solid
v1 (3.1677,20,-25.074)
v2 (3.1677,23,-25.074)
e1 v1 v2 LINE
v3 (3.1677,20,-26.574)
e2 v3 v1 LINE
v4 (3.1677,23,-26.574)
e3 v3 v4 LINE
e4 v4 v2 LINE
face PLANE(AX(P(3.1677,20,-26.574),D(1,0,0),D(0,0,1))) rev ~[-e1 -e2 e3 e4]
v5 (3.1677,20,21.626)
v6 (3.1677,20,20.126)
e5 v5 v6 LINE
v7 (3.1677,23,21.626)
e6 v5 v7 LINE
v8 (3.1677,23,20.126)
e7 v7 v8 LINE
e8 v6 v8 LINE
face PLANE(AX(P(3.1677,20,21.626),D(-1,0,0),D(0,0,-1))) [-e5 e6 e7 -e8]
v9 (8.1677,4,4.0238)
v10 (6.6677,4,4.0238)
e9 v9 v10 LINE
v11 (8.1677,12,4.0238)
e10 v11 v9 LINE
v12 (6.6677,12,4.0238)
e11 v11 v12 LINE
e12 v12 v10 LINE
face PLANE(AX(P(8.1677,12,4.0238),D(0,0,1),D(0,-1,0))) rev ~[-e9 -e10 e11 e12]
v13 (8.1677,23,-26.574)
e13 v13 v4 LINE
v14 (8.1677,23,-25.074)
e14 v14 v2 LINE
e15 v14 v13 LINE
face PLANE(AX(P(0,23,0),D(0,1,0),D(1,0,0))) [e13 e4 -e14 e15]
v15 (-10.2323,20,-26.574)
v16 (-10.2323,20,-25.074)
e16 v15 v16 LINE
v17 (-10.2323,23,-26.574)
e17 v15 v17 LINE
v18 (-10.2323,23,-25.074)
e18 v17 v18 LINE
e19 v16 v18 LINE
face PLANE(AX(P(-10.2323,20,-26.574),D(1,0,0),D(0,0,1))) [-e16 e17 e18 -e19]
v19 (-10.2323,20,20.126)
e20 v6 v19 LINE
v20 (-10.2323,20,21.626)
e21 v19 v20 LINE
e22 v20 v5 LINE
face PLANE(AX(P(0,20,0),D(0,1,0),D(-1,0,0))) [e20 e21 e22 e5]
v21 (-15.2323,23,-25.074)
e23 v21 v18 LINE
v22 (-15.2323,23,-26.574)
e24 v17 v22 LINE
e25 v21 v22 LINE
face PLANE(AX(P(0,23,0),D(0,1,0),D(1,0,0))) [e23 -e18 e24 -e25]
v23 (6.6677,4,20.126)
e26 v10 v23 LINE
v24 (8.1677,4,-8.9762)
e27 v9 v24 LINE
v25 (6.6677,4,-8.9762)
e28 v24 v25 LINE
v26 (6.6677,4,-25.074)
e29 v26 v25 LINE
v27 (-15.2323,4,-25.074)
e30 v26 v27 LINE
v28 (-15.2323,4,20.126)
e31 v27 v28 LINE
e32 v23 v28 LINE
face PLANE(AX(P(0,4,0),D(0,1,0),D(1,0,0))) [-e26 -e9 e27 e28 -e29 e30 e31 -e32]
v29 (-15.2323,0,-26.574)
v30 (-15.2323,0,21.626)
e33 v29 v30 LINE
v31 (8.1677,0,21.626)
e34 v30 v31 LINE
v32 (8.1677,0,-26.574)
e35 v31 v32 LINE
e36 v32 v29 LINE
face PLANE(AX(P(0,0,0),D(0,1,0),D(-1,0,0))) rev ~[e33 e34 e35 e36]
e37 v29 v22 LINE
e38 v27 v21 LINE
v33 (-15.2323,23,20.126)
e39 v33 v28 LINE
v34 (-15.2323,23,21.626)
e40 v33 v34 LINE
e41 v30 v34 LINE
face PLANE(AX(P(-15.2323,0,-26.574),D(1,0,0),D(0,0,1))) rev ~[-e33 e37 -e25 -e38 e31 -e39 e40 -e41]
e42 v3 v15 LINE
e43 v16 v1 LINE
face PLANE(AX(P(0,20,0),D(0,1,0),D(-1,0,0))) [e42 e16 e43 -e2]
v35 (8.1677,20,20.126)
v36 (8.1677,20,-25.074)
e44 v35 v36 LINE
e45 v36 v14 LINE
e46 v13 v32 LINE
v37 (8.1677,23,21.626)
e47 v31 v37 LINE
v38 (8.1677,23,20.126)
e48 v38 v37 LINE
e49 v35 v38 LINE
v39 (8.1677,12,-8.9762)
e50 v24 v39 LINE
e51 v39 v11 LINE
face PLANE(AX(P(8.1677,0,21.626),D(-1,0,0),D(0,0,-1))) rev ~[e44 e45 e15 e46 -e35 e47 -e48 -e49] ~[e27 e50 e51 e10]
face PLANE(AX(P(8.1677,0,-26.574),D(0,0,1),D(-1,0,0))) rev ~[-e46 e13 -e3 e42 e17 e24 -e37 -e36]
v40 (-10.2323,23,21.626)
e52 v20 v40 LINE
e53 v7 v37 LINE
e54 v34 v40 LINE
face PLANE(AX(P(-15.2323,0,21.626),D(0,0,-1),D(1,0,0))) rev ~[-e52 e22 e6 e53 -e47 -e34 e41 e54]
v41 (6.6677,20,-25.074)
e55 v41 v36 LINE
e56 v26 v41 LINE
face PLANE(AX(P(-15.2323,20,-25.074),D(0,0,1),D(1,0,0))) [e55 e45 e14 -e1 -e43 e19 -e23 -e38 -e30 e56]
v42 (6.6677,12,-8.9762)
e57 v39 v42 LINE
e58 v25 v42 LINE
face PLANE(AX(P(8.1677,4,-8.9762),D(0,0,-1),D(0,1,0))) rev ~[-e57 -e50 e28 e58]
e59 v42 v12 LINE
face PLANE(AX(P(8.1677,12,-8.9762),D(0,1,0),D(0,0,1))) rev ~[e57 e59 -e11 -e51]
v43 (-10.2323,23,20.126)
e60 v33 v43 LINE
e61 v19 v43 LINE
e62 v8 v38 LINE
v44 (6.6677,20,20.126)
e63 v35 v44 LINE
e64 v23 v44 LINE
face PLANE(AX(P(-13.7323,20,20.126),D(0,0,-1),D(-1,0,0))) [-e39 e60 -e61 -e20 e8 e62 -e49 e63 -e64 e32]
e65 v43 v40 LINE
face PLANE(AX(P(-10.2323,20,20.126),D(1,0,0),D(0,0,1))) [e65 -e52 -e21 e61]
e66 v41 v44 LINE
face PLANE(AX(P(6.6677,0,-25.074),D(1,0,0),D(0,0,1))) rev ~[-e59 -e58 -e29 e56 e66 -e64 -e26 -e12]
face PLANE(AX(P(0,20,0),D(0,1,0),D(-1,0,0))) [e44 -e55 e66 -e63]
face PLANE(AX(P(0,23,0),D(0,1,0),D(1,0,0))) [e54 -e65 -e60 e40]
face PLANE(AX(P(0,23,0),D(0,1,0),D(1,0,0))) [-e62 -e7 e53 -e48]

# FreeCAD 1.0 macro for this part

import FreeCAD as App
import Part
import Sketcher

V = App.Vector


def add_polygon(sketch, points):
    """Adds a closed chain of lines whose ends are joined by coincident constraints."""
    first, n = sketch.GeometryCount, len(points)
    for a, b in zip(points, points[1:] + points[:1]):
        sketch.addGeometry(Part.LineSegment(App.Vector(*a, 0), App.Vector(*b, 0)), False)
    for i in range(n):
        sketch.addConstraint(Sketcher.Constraint("Coincident", first + i, 2, first + (i + 1) % n, 1))

doc = App.newDocument("Part")
body = doc.addObject("PartDesign::Body", "Body")

sketch1 = body.newObject("Sketcher::SketchObject", "Sketch")
sketch1.AttachmentSupport = (doc.getObject("XZ_Plane"), [""])
sketch1.MapMode = "FlatFace"
add_polygon(sketch1, [(8, -27), (-15, -27), (-15, 22), (8, 22)])
add_polygon(sketch1, [(7, -25), (7, 20), (-14, 20), (-14, -25)])
sketch1.addConstraint([
    Sketcher.Constraint("Horizontal", 0),
    Sketcher.Constraint("Vertical", 1),
    Sketcher.Constraint("Horizontal", 2),
    Sketcher.Constraint("Vertical", 3),
    Sketcher.Constraint("Vertical", 4),
    Sketcher.Constraint("Horizontal", 5),
    Sketcher.Constraint("Vertical", 6),
    Sketcher.Constraint("Horizontal", 7),
    Sketcher.Constraint("DistanceX", 5, 2, 5, 1, 20.4),
    Sketcher.Constraint("DistanceY", 4, 1, 4, 2, 45.2),
    Sketcher.Constraint("DistanceX", 4, 2, 2, 2, 1.5),
    Sketcher.Constraint("DistanceY", 4, 2, 2, 2, 1.5),
    Sketcher.Constraint("DistanceX", 1, 2, 5, 2, 1.5),
    Sketcher.Constraint("DistanceY", 0, 2, 6, 2, 1.5),
    Sketcher.Constraint("DistanceY", 0, 2, -1, 1, 26.574),
    Sketcher.Constraint("DistanceX", 0, 2, -1, 1, 15.2323),
])
pad1 = body.newObject("PartDesign::Pad", "Pad")
pad1.Profile = sketch1
pad1.Length = 20
pad1.Reversed = True

sketch2 = body.newObject("Sketcher::SketchObject", "Sketch001")
sketch2.AttachmentSupport = (doc.getObject("YZ_Plane"), [""])
sketch2.MapMode = "FlatFace"
sketch2.AttachmentOffset = App.Placement(V(0, 0, 8.1677), App.Rotation())
add_polygon(sketch2, [(4, -9), (12, -9), (12, 4), (4, 4)])
sketch2.addConstraint([
    Sketcher.Constraint("Horizontal", 0),
    Sketcher.Constraint("Vertical", 1),
    Sketcher.Constraint("Horizontal", 2),
    Sketcher.Constraint("Vertical", 3),
    Sketcher.Constraint("DistanceX", 0, 1, 0, 2, 8.0),
    Sketcher.Constraint("DistanceY", 1, 1, 1, 2, 13.0),
    Sketcher.Constraint("DistanceX", -1, 1, 0, 2, 12.0),
    Sketcher.Constraint("DistanceY", 0, 2, -1, 1, 8.9762),
])
pocket1 = body.newObject("PartDesign::Pocket", "Pocket")
pocket1.Profile = sketch2
pocket1.Length = 6

sketch3 = body.newObject("Sketcher::SketchObject", "Sketch002")
sketch3.AttachmentSupport = (doc.getObject("XZ_Plane"), [""])
sketch3.MapMode = "FlatFace"
add_polygon(sketch3, [(-14, 20), (7, 20), (7, -25), (-14, -25)])
sketch3.addConstraint([
    Sketcher.Constraint("Horizontal", 0),
    Sketcher.Constraint("Vertical", 1),
    Sketcher.Constraint("Horizontal", 2),
    Sketcher.Constraint("Vertical", 3),
    Sketcher.Constraint("DistanceX", 0, 1, 0, 2, 20.4),
    Sketcher.Constraint("DistanceY", 1, 2, 1, 1, 45.2),
    Sketcher.Constraint("DistanceY", -1, 1, 0, 2, 20.126),
    Sketcher.Constraint("DistanceX", -1, 1, 0, 2, 6.6677),
])
pad2 = body.newObject("PartDesign::Pad", "Pad001")
pad2.Profile = sketch3
pad2.Length = 4
pad2.Reversed = True

sketch4 = body.newObject("Sketcher::SketchObject", "Sketch003")
sketch4.AttachmentSupport = (doc.getObject("XZ_Plane"), [""])
sketch4.MapMode = "FlatFace"
sketch4.AttachmentOffset = App.Placement(V(0, 0, -20), App.Rotation())
add_polygon(sketch4, [(-15.2, 20.1), (-13.7, 20.1), (-13.7, -25.1), (-15.2, -25.1)])
sketch4.addConstraint([
    Sketcher.Constraint("Horizontal", 0),
    Sketcher.Constraint("Vertical", 1),
    Sketcher.Constraint("Horizontal", 2),
    Sketcher.Constraint("Vertical", 3),
    Sketcher.Constraint("DistanceX", 0, 1, 0, 2, 1.5),
    Sketcher.Constraint("DistanceY", 1, 2, 1, 1, 45.2),
    Sketcher.Constraint("DistanceY", -1, 1, 0, 2, 20.126),
    Sketcher.Constraint("DistanceX", 0, 2, -1, 1, 13.7323),
])
pocket2 = body.newObject("PartDesign::Pocket", "Pocket001")
pocket2.Profile = sketch4
pocket2.Length = 16
pocket2.Reversed = True

sketch5 = body.newObject("Sketcher::SketchObject", "Sketch004")
sketch5.AttachmentSupport = (doc.getObject("XZ_Plane"), [""])
sketch5.MapMode = "FlatFace"
sketch5.AttachmentOffset = App.Placement(V(0, 0, -20), App.Rotation())
add_polygon(sketch5, [(-10.2, 20.1), (-15.2, 20.1), (-15.2, 21.6), (-10.2, 21.6)])
add_polygon(sketch5, [(3.2, -25.1), (8.2, -25.1), (8.2, -26.6), (3.2, -26.6)])
add_polygon(sketch5, [(8.2, 20.1), (3.2, 20.1), (3.2, 21.6), (8.2, 21.6)])
add_polygon(sketch5, [(-10.2, -25.1), (-10.2, -26.6), (-15.2, -26.6), (-15.2, -25.1)])
sketch5.addConstraint([
    Sketcher.Constraint("Horizontal", 0),
    Sketcher.Constraint("Vertical", 1),
    Sketcher.Constraint("Horizontal", 2),
    Sketcher.Constraint("Vertical", 3),
    Sketcher.Constraint("Horizontal", 4),
    Sketcher.Constraint("Vertical", 5),
    Sketcher.Constraint("Horizontal", 6),
    Sketcher.Constraint("Vertical", 7),
    Sketcher.Constraint("Horizontal", 8),
    Sketcher.Constraint("Vertical", 9),
    Sketcher.Constraint("Horizontal", 10),
    Sketcher.Constraint("Vertical", 11),
    Sketcher.Constraint("Vertical", 12),
    Sketcher.Constraint("Horizontal", 13),
    Sketcher.Constraint("Vertical", 14),
    Sketcher.Constraint("Horizontal", 15),
    Sketcher.Constraint("Horizontal", 3, 2, 8, 2),
    Sketcher.Constraint("Horizontal", 2, 2, 9, 2),
    Sketcher.Constraint("Horizontal", 6, 2, 12, 2),
    Sketcher.Constraint("Horizontal", 7, 2, 14, 2),
    Sketcher.Constraint("Vertical", 7, 2, 8, 2),
    Sketcher.Constraint("Vertical", 5, 2, 10, 2),
    Sketcher.Constraint("Vertical", 3, 2, 12, 2),
    Sketcher.Constraint("Vertical", 1, 2, 13, 2),
    Sketcher.Constraint("Equal", 2, 4),
    Sketcher.Constraint("Equal", 3, 5),
    Sketcher.Constraint("DistanceX", 0, 2, 0, 1, 5.0),
    Sketcher.Constraint("DistanceY", 1, 1, 1, 2, 1.5),
    Sketcher.Constraint("DistanceX", 3, 2, 4, 2, 18.4),
    Sketcher.Constraint("DistanceY", 4, 2, 3, 2, 45.2),
    Sketcher.Constraint("DistanceY", -1, 1, 0, 2, 20.126),
    Sketcher.Constraint("DistanceX", 0, 2, -1, 1, 15.2323),
])
pad3 = body.newObject("PartDesign::Pad", "Pad002")
pad3.Profile = sketch5
pad3.Length = 3
pad3.Reversed = True

doc.recompute()
